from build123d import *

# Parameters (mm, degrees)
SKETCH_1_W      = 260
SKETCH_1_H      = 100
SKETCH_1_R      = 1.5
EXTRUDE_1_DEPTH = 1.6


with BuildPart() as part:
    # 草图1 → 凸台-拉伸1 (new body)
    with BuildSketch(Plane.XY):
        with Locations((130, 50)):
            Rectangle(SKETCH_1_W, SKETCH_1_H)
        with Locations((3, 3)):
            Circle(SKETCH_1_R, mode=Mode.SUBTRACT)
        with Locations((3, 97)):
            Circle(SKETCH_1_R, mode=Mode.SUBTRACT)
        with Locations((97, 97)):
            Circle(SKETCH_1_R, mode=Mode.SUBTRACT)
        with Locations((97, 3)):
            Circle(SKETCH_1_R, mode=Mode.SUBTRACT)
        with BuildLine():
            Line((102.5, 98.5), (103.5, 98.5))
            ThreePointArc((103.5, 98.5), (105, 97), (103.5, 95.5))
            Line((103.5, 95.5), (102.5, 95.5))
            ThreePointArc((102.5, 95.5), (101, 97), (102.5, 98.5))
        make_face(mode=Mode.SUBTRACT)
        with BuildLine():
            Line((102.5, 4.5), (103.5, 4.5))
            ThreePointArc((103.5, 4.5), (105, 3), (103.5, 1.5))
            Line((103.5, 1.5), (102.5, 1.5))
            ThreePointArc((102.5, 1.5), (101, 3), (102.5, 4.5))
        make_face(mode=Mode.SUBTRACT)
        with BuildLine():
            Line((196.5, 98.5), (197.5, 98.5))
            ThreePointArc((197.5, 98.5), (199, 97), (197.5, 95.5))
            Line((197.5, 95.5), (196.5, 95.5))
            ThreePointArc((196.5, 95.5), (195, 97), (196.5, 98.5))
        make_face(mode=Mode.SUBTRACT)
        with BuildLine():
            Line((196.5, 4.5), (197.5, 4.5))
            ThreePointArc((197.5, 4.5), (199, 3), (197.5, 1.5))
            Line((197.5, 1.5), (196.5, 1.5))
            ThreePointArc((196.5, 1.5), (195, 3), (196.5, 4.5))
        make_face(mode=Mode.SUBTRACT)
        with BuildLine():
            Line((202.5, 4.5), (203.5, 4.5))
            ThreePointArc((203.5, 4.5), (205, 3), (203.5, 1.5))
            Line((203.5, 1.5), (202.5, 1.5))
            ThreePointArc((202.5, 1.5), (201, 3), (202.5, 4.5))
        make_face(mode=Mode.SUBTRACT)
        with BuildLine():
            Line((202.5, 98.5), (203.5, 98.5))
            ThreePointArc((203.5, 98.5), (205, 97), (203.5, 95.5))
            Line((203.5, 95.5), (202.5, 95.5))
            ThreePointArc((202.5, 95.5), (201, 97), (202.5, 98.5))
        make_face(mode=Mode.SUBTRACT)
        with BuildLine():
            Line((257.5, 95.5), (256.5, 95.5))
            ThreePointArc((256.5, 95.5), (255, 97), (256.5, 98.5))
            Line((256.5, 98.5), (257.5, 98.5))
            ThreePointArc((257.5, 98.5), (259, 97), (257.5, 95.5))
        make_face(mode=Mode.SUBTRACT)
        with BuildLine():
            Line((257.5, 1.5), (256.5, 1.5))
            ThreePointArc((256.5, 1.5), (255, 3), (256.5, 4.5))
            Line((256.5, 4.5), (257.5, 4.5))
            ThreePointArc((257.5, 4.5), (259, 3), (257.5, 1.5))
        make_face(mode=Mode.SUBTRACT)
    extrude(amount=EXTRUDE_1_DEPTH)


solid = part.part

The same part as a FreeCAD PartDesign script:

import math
import FreeCAD as App
import Part
import Sketcher

V = App.Vector

doc = App.newDocument("Part")
body = doc.addObject("PartDesign::Body", "Body")

# Sketch on XY plane
sketch1 = body.newObject("Sketcher::SketchObject", "Sketch")
sketch1.AttachmentSupport = (doc.getObject("XY_Plane"), [""])
sketch1.MapMode = "FlatFace"
sketch1.addGeometry(Part.LineSegment(V(0, 100, 0), V(0, 0, 0)), False)
sketch1.addGeometry(Part.LineSegment(V(0, 0, 0), V(260, 0, 0)), False)
sketch1.addGeometry(Part.LineSegment(V(260, 0, 0), V(260, 100, 0)), False)
sketch1.addGeometry(Part.LineSegment(V(260, 100, 0), V(0, 100, 0)), False)
sketch1.addGeometry(Part.Circle(V(3, 3, 0), V(0, 0, 1), 1.5), False)
sketch1.addGeometry(Part.Circle(V(97, 3, 0), V(0, 0, 1), 1.5), False)
sketch1.addGeometry(Part.ArcOfCircle(Part.Circle(V(102.5, 3, 0), V(0, 0, 1), 1.5), math.radians(90), math.radians(270)), False)
sketch1.addGeometry(Part.LineSegment(V(102.5, 4.5, 0), V(103.5, 4.5, 0)), False)
sketch1.addGeometry(Part.ArcOfCircle(Part.Circle(V(103.5, 3, 0), V(0, 0, 1), 1.5), math.radians(-90), math.radians(90)), False)
sketch1.addGeometry(Part.LineSegment(V(103.5, 1.5, 0), V(102.5, 1.5, 0)), False)
sketch1.addGeometry(Part.ArcOfCircle(Part.Circle(V(196.5, 3, 0), V(0, 0, 1), 1.5), math.radians(90), math.radians(270)), False)
sketch1.addGeometry(Part.LineSegment(V(196.5, 4.5, 0), V(197.5, 4.5, 0)), False)
sketch1.addGeometry(Part.ArcOfCircle(Part.Circle(V(197.5, 3, 0), V(0, 0, 1), 1.5), math.radians(-90), math.radians(90)), False)
sketch1.addGeometry(Part.LineSegment(V(197.5, 1.5, 0), V(196.5, 1.5, 0)), False)
sketch1.addGeometry(Part.ArcOfCircle(Part.Circle(V(202.5, 3, 0), V(0, 0, 1), 1.5), math.radians(90), math.radians(270)), False)
sketch1.addGeometry(Part.LineSegment(V(202.5, 4.5, 0), V(203.5, 4.5, 0)), False)
sketch1.addGeometry(Part.ArcOfCircle(Part.Circle(V(203.5, 3, 0), V(0, 0, 1), 1.5), math.radians(-90), math.radians(90)), False)
sketch1.addGeometry(Part.LineSegment(V(203.5, 1.5, 0), V(202.5, 1.5, 0)), False)
sketch1.addGeometry(Part.ArcOfCircle(Part.Circle(V(257.5, 3, 0), V(0, 0, 1), 1.5), math.radians(-90), math.radians(90)), False)
sketch1.addGeometry(Part.LineSegment(V(257.5, 1.5, 0), V(256.5, 1.5, 0)), False)
sketch1.addGeometry(Part.ArcOfCircle(Part.Circle(V(256.5, 3, 0), V(0, 0, 1), 1.5), math.radians(90), math.radians(270)), False)
sketch1.addGeometry(Part.LineSegment(V(256.5, 4.5, 0), V(257.5, 4.5, 0)), False)
sketch1.addGeometry(Part.Circle(V(3, 97, 0), V(0, 0, 1), 1.5), False)
sketch1.addGeometry(Part.Circle(V(97, 97, 0), V(0, 0, 1), 1.5), False)
sketch1.addGeometry(Part.ArcOfCircle(Part.Circle(V(102.5, 97, 0), V(0, 0, 1), 1.5), math.radians(90), math.radians(270)), False)
sketch1.addGeometry(Part.LineSegment(V(102.5, 98.5, 0), V(103.5, 98.5, 0)), False)
sketch1.addGeometry(Part.ArcOfCircle(Part.Circle(V(103.5, 97, 0), V(0, 0, 1), 1.5), math.radians(-90), math.radians(90)), False)
sketch1.addGeometry(Part.LineSegment(V(103.5, 95.5, 0), V(102.5, 95.5, 0)), False)
sketch1.addGeometry(Part.ArcOfCircle(Part.Circle(V(196.5, 97, 0), V(0, 0, 1), 1.5), math.radians(90), math.radians(270)), False)
sketch1.addGeometry(Part.LineSegment(V(196.5, 98.5, 0), V(197.5, 98.5, 0)), False)
sketch1.addGeometry(Part.ArcOfCircle(Part.Circle(V(197.5, 97, 0), V(0, 0, 1), 1.5), math.radians(-90), math.radians(90)), False)
sketch1.addGeometry(Part.LineSegment(V(197.5, 95.5, 0), V(196.5, 95.5, 0)), False)
sketch1.addGeometry(Part.ArcOfCircle(Part.Circle(V(202.5, 97, 0), V(0, 0, 1), 1.5), math.radians(90), math.radians(270)), False)
sketch1.addGeometry(Part.LineSegment(V(202.5, 98.5, 0), V(203.5, 98.5, 0)), False)
sketch1.addGeometry(Part.ArcOfCircle(Part.Circle(V(203.5, 97, 0), V(0, 0, 1), 1.5), math.radians(-90), math.radians(90)), False)
sketch1.addGeometry(Part.LineSegment(V(203.5, 95.5, 0), V(202.5, 95.5, 0)), False)
sketch1.addGeometry(Part.ArcOfCircle(Part.Circle(V(257.5, 97, 0), V(0, 0, 1), 1.5), math.radians(-90), math.radians(90)), False)
sketch1.addGeometry(Part.LineSegment(V(257.5, 95.5, 0), V(256.5, 95.5, 0)), False)
sketch1.addGeometry(Part.ArcOfCircle(Part.Circle(V(256.5, 97, 0), V(0, 0, 1), 1.5), math.radians(90), math.radians(270)), False)
sketch1.addGeometry(Part.LineSegment(V(256.5, 98.5, 0), V(257.5, 98.5, 0)), False)
sketch1.addConstraint(Sketcher.Constraint("Coincident", 0, 2, 1, 1))
sketch1.addConstraint(Sketcher.Constraint("Coincident", 1, 2, 2, 1))
sketch1.addConstraint(Sketcher.Constraint("Coincident", 2, 2, 3, 1))
sketch1.addConstraint(Sketcher.Constraint("Coincident", 3, 2, 0, 1))
sketch1.addConstraint(Sketcher.Constraint("Tangent", 6, 1, 7, 1))
sketch1.addConstraint(Sketcher.Constraint("Tangent", 7, 2, 8, 2))
sketch1.addConstraint(Sketcher.Constraint("Tangent", 8, 1, 9, 1))
sketch1.addConstraint(Sketcher.Constraint("Tangent", 9, 2, 6, 2))
sketch1.addConstraint(Sketcher.Constraint("Tangent", 10, 1, 11, 1))
sketch1.addConstraint(Sketcher.Constraint("Tangent", 11, 2, 12, 2))
sketch1.addConstraint(Sketcher.Constraint("Tangent", 12, 1, 13, 1))
sketch1.addConstraint(Sketcher.Constraint("Tangent", 13, 2, 10, 2))
sketch1.addConstraint(Sketcher.Constraint("Tangent", 14, 1, 15, 1))
sketch1.addConstraint(Sketcher.Constraint("Tangent", 15, 2, 16, 2))
sketch1.addConstraint(Sketcher.Constraint("Tangent", 16, 1, 17, 1))
sketch1.addConstraint(Sketcher.Constraint("Tangent", 17, 2, 14, 2))
sketch1.addConstraint(Sketcher.Constraint("Tangent", 18, 1, 19, 1))
sketch1.addConstraint(Sketcher.Constraint("Tangent", 19, 2, 20, 2))
sketch1.addConstraint(Sketcher.Constraint("Tangent", 20, 1, 21, 1))
sketch1.addConstraint(Sketcher.Constraint("Tangent", 21, 2, 18, 2))
sketch1.addConstraint(Sketcher.Constraint("Tangent", 24, 1, 25, 1))
sketch1.addConstraint(Sketcher.Constraint("Tangent", 25, 2, 26, 2))
sketch1.addConstraint(Sketcher.Constraint("Tangent", 26, 1, 27, 1))
sketch1.addConstraint(Sketcher.Constraint("Tangent", 27, 2, 24, 2))
sketch1.addConstraint(Sketcher.Constraint("Tangent", 28, 1, 29, 1))
sketch1.addConstraint(Sketcher.Constraint("Tangent", 29, 2, 30, 2))
sketch1.addConstraint(Sketcher.Constraint("Tangent", 30, 1, 31, 1))
sketch1.addConstraint(Sketcher.Constraint("Tangent", 31, 2, 28, 2))
sketch1.addConstraint(Sketcher.Constraint("Tangent", 32, 1, 33, 1))
sketch1.addConstraint(Sketcher.Constraint("Tangent", 33, 2, 34, 2))
sketch1.addConstraint(Sketcher.Constraint("Tangent", 34, 1, 35, 1))
sketch1.addConstraint(Sketcher.Constraint("Tangent", 35, 2, 32, 2))
sketch1.addConstraint(Sketcher.Constraint("Tangent", 36, 1, 37, 1))
sketch1.addConstraint(Sketcher.Constraint("Tangent", 37, 2, 38, 2))
sketch1.addConstraint(Sketcher.Constraint("Tangent", 38, 1, 39, 1))
sketch1.addConstraint(Sketcher.Constraint("Tangent", 39, 2, 36, 2))
sketch1.addConstraint(Sketcher.Constraint("Vertical", 0))
sketch1.addConstraint(Sketcher.Constraint("Horizontal", 1))
sketch1.addConstraint(Sketcher.Constraint("Vertical", 2))
sketch1.addConstraint(Sketcher.Constraint("Horizontal", 3))
sketch1.addConstraint(Sketcher.Constraint("Horizontal", 7))
sketch1.addConstraint(Sketcher.Constraint("Horizontal", 9))
sketch1.addConstraint(Sketcher.Constraint("Horizontal", 11))
sketch1.addConstraint(Sketcher.Constraint("Horizontal", 13))
sketch1.addConstraint(Sketcher.Constraint("Horizontal", 15))
sketch1.addConstraint(Sketcher.Constraint("Horizontal", 17))
sketch1.addConstraint(Sketcher.Constraint("Horizontal", 19))
sketch1.addConstraint(Sketcher.Constraint("Horizontal", 21))
sketch1.addConstraint(Sketcher.Constraint("Horizontal", 25))
sketch1.addConstraint(Sketcher.Constraint("Horizontal", 27))
sketch1.addConstraint(Sketcher.Constraint("Horizontal", 29))
sketch1.addConstraint(Sketcher.Constraint("Horizontal", 31))
sketch1.addConstraint(Sketcher.Constraint("Horizontal", 33))
sketch1.addConstraint(Sketcher.Constraint("Horizontal", 35))
sketch1.addConstraint(Sketcher.Constraint("Horizontal", 37))
sketch1.addConstraint(Sketcher.Constraint("Horizontal", 39))
sketch1.addConstraint(Sketcher.Constraint("Coincident", 0, 2, -1, 1))
sketch1.addConstraint(Sketcher.Constraint("Equal", 4, 5))
sketch1.addConstraint(Sketcher.Constraint("Equal", 5, 6))
sketch1.addConstraint(Sketcher.Constraint("Equal", 8, 10))
sketch1.addConstraint(Sketcher.Constraint("Equal", 12, 14))
sketch1.addConstraint(Sketcher.Constraint("Equal", 16, 18))
sketch1.addConstraint(Sketcher.Constraint("Equal", 20, 22))
sketch1.addConstraint(Sketcher.Constraint("Equal", 22, 23))
sketch1.addConstraint(Sketcher.Constraint("Equal", 23, 24))
sketch1.addConstraint(Sketcher.Constraint("Equal", 26, 28))
sketch1.addConstraint(Sketcher.Constraint("Equal", 30, 32))
sketch1.addConstraint(Sketcher.Constraint("Equal", 34, 36))
sketch1.addConstraint(Sketcher.Constraint("Horizontal", 4, 3, 5, 3))
sketch1.addConstraint(Sketcher.Constraint("Horizontal", 5, 3, 6, 3))
sketch1.addConstraint(Sketcher.Constraint("Horizontal", 8, 3, 10, 3))
sketch1.addConstraint(Sketcher.Constraint("Horizontal", 12, 3, 14, 3))
sketch1.addConstraint(Sketcher.Constraint("Horizontal", 16, 3, 18, 3))
sketch1.addConstraint(Sketcher.Constraint("Horizontal", 22, 3, 23, 3))
sketch1.addConstraint(Sketcher.Constraint("Horizontal", 23, 3, 24, 3))
sketch1.addConstraint(Sketcher.Constraint("Horizontal", 26, 3, 28, 3))
sketch1.addConstraint(Sketcher.Constraint("Horizontal", 30, 3, 32, 3))
sketch1.addConstraint(Sketcher.Constraint("Horizontal", 34, 3, 36, 3))
sketch1.addConstraint(Sketcher.Constraint("Vertical", 4, 3, 22, 3))
sketch1.addConstraint(Sketcher.Constraint("Vertical", 5, 3, 23, 3))
sketch1.addConstraint(Sketcher.Constraint("Vertical", 6, 3, 24, 3))
sketch1.addConstraint(Sketcher.Constraint("Vertical", 8, 3, 26, 3))
sketch1.addConstraint(Sketcher.Constraint("Vertical", 10, 3, 28, 3))
sketch1.addConstraint(Sketcher.Constraint("Vertical", 12, 3, 30, 3))
sketch1.addConstraint(Sketcher.Constraint("Vertical", 14, 3, 32, 3))
sketch1.addConstraint(Sketcher.Constraint("Vertical", 16, 3, 34, 3))
sketch1.addConstraint(Sketcher.Constraint("Vertical", 18, 3, 36, 3))
sketch1.addConstraint(Sketcher.Constraint("Vertical", 20, 3, 38, 3))
sketch1.addConstraint(Sketcher.Constraint("Equal", 9, 11))
sketch1.addConstraint(Sketcher.Constraint("Equal", 13, 15))
sketch1.addConstraint(Sketcher.Constraint("Equal", 17, 19))
sketch1.addConstraint(Sketcher.Constraint("Diameter", 4, 3.0))
sketch1.addConstraint(Sketcher.Constraint("DistanceX", 1, 1, 1, 2, 260.0))
sketch1.addConstraint(Sketcher.Constraint("DistanceX", 7, 1, 7, 2, 1.0))
sketch1.addConstraint(Sketcher.Constraint("DistanceY", 0, 2, 0, 1, 100.0))
sketch1.addConstraint(Sketcher.Constraint("DistanceX", -1, 1, 4, 3, 3.0))
sketch1.addConstraint(Sketcher.Constraint("DistanceY", -1, 1, 4, 3, 3.0))
sketch1.addConstraint(Sketcher.Constraint("DistanceX", -1, 1, 5, 3, 97.0))
sketch1.addConstraint(Sketcher.Constraint("DistanceY", -1, 1, 22, 3, 97.0))
sketch1.addConstraint(Sketcher.Constraint("DistanceX", 8, 3, 10, 3, 93.0))
sketch1.addConstraint(Sketcher.Constraint("DistanceX", 12, 3, 14, 3, 5.0))
sketch1.addConstraint(Sketcher.Constraint("DistanceX", 16, 3, 18, 3, 54.0))
sketch1.addConstraint(Sketcher.Constraint("DistanceX", -1, 1, 6, 3, 102.5))
pad1 = body.newObject("PartDesign::Pad", "Pad")
pad1.Profile = sketch1
pad1.Length = 1.6

doc.recompute()
